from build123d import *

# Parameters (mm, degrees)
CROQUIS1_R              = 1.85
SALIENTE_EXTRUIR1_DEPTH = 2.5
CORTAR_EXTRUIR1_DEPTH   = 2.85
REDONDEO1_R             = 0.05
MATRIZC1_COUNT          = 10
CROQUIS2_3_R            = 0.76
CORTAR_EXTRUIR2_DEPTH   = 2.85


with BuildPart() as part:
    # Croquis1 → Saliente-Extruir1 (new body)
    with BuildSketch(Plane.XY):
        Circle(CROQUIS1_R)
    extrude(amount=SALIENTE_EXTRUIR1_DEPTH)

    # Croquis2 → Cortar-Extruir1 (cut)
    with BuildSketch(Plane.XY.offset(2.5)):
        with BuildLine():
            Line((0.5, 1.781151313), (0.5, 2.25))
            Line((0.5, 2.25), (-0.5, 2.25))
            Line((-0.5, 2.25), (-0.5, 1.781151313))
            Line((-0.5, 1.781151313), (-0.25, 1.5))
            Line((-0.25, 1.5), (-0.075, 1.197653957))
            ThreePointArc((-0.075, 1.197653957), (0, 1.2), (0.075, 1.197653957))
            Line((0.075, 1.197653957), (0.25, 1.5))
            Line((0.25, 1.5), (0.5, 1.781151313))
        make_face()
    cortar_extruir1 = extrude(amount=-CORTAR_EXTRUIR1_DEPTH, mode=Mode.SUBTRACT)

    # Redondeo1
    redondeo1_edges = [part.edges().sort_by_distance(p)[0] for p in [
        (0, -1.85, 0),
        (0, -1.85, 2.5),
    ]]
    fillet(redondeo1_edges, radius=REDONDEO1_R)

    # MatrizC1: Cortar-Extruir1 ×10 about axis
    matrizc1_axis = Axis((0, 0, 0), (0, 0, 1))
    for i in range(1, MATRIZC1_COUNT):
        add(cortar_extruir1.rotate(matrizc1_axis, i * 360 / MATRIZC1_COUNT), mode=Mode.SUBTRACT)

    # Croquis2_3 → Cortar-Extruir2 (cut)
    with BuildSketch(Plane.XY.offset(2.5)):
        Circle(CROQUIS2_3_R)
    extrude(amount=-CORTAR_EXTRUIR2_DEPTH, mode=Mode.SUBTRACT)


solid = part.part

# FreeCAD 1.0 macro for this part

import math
import FreeCAD as App
import Part
import Sketcher
Q = App.Units.Quantity


def edges_at(feature, points):
    """Names of the edges that pass closest to the given points."""
    edges = feature.Shape.Edges
    near = lambda p: min(range(len(edges)), key=lambda i: edges[i].distToShape(Part.Vertex(*p))[0])
    return sorted({f"Edge{near(p) + 1}" for p in points})

doc = App.newDocument("Part")
params = doc.addObject("Spreadsheet::Sheet", "Params")
for row, (alias, value) in enumerate([
    ("sketch1_diameter", "3.7 mm"),
    ("pad1_length", "2.5 mm"),
    ("sketch2_radius", "1.2 mm"),
    ("sketch2_width", "1 mm"),
    ("pocket1_length", "2.85 mm"),
    ("fillet_radius", "0.05 mm"),
    ("sketch3_diameter", "1.52 mm"),
    ("pocket2_length", "2.85 mm"),
], start=1):
    params.set(f"A{row}", alias)
    params.set(f"B{row}", "=" + value)
    params.setAlias(f"B{row}", alias)

body = doc.addObject("PartDesign::Body", "Body")

# Sketch on XY plane
sketch1 = body.newObject("Sketcher::SketchObject", "Sketch")
sketch1.AttachmentSupport = (doc.getObject("XY_Plane"), [""])
sketch1.MapMode = "FlatFace"
sketch1.addGeometry(Part.Circle(App.Vector(0, 0, 0), App.Vector(0, 0, 1), 1.9), False)
sketch1.addConstraint(Sketcher.Constraint("Coincident", 0, 3, -1, 1))
sketch1.addConstraint(Sketcher.Constraint("Diameter", 0, Q("3.7 mm")))
sketch1.setExpression("Constraints[1]", "Params.sketch1_diameter")
pad1 = body.newObject("PartDesign::Pad", "Pad")
pad1.Profile = sketch1
pad1.setExpression("Length", "Params.pad1_length")

# Sketch on XY plane
sketch2 = body.newObject("Sketcher::SketchObject", "Sketch001")
sketch2.AttachmentSupport = (doc.getObject("XY_Plane"), [""])
sketch2.MapMode = "FlatFace"
sketch2.AttachmentOffset = App.Placement(App.Vector(0, 0, 2.5), App.Rotation())
sketch2.addGeometry(Part.LineSegment(App.Vector(0.5, 1.78, 0), App.Vector(0.5, 2.25, 0)), False)
sketch2.addGeometry(Part.LineSegment(App.Vector(0.5, 2.25, 0), App.Vector(-0.5, 2.25, 0)), False)
sketch2.addGeometry(Part.LineSegment(App.Vector(-0.5, 2.25, 0), App.Vector(-0.5, 1.78, 0)), False)
sketch2.addGeometry(Part.LineSegment(App.Vector(-0.5, 1.78, 0), App.Vector(-0.25, 1.5, 0)), False)
sketch2.addGeometry(Part.LineSegment(App.Vector(-0.25, 1.5, 0), App.Vector(-0.07, 1.2, 0)), False)
sketch2.addGeometry(Part.ArcOfCircle(Part.Circle(App.Vector(0, 0, 0), App.Vector(0, 0, 1), 1.2), math.radians(86.42), math.radians(93.58)), False)
sketch2.addGeometry(Part.LineSegment(App.Vector(0.07, 1.2, 0), App.Vector(0.25, 1.5, 0)), False)
sketch2.addGeometry(Part.LineSegment(App.Vector(0.25, 1.5, 0), App.Vector(0.5, 1.78, 0)), False)
sketch2.addConstraint(Sketcher.Constraint("Coincident", 0, 2, 1, 1))
sketch2.addConstraint(Sketcher.Constraint("Coincident", 1, 2, 2, 1))
sketch2.addConstraint(Sketcher.Constraint("Coincident", 2, 2, 3, 1))
sketch2.addConstraint(Sketcher.Constraint("Coincident", 3, 2, 4, 1))
sketch2.addConstraint(Sketcher.Constraint("Coincident", 4, 2, 5, 2))
sketch2.addConstraint(Sketcher.Constraint("Coincident", 5, 1, 6, 1))
sketch2.addConstraint(Sketcher.Constraint("Coincident", 6, 2, 7, 1))
sketch2.addConstraint(Sketcher.Constraint("Coincident", 7, 2, 0, 1))
sketch2.addConstraint(Sketcher.Constraint("Vertical", 0))
sketch2.addConstraint(Sketcher.Constraint("Horizontal", 1))
sketch2.addConstraint(Sketcher.Constraint("Vertical", 2))
sketch2.addConstraint(Sketcher.Constraint("Coincident", 5, 3, -1, 1))
sketch2.addConstraint(Sketcher.Constraint("Symmetric", 3, 2, 6, 2, -2))
sketch2.addConstraint(Sketcher.Constraint("Symmetric", 2, 2, 7, 2, -2))
sketch2.addConstraint(Sketcher.Constraint("Horizontal", 4, 2, 5, 1))
sketch2.addConstraint(Sketcher.Constraint("Radius", 5, Q("1.2 mm")))
sketch2.addConstraint(Sketcher.Constraint("DistanceX", 1, 2, 1, 1, Q("1 mm")))
sketch2.addConstraint(Sketcher.Constraint("DistanceY", -1, 1, 3, 2, Q("1.5 mm")))
sketch2.addConstraint(Sketcher.Constraint("DistanceX", 3, 2, 6, 2, Q("0.5 mm")))
sketch2.addConstraint(Sketcher.Constraint("DistanceY", -1, 1, 0, 2, Q("2.25 mm")))
sketch2.addConstraint(Sketcher.Constraint("DistanceX", 4, 2, 5, 1, Q("0.15 mm")))
sketch2.addConstraint(Sketcher.Constraint("DistanceY", 0, 1, 0, 2, Q("0.468849 mm")))
sketch2.setExpression("Constraints[15]", "Params.sketch2_radius")
sketch2.setExpression("Constraints[16]", "Params.sketch2_width")
pocket1 = body.newObject("PartDesign::Pocket", "Pocket")
pocket1.Profile = sketch2
pocket1.setExpression("Length", "Params.pocket1_length")
doc.recompute()

fillet = body.newObject("PartDesign::Fillet", "Fillet")
fillet.Base = (pocket1, edges_at(pocket1, [(0, -1.85, 0), (0, -1.85, 2.5)]))
fillet.setExpression("Radius", "Params.fillet_radius")
doc.recompute()

polarpattern = body.newObject("PartDesign::PolarPattern", "PolarPattern")
polarpattern.Originals = [pocket1]
polarpattern.Axis = (doc.getObject("Z_Axis"), [""])
polarpattern.Angle = 360
polarpattern.Occurrences = 10
body.Tip = polarpattern

# Sketch on XY plane
sketch3 = body.newObject("Sketcher::SketchObject", "Sketch002")
sketch3.AttachmentSupport = (doc.getObject("XY_Plane"), [""])
sketch3.MapMode = "FlatFace"
sketch3.AttachmentOffset = App.Placement(App.Vector(0, 0, 2.5), App.Rotation())
sketch3.addGeometry(Part.Circle(App.Vector(0, 0, 0), App.Vector(0, 0, 1), 0.8), False)
sketch3.addConstraint(Sketcher.Constraint("Coincident", 0, 3, -1, 1))
sketch3.addConstraint(Sketcher.Constraint("Diameter", 0, Q("1.52 mm")))
sketch3.setExpression("Constraints[1]", "Params.sketch3_diameter")
pocket2 = body.newObject("PartDesign::Pocket", "Pocket001")
pocket2.Profile = sketch3
pocket2.setExpression("Length", "Params.pocket2_length")

doc.recompute()
